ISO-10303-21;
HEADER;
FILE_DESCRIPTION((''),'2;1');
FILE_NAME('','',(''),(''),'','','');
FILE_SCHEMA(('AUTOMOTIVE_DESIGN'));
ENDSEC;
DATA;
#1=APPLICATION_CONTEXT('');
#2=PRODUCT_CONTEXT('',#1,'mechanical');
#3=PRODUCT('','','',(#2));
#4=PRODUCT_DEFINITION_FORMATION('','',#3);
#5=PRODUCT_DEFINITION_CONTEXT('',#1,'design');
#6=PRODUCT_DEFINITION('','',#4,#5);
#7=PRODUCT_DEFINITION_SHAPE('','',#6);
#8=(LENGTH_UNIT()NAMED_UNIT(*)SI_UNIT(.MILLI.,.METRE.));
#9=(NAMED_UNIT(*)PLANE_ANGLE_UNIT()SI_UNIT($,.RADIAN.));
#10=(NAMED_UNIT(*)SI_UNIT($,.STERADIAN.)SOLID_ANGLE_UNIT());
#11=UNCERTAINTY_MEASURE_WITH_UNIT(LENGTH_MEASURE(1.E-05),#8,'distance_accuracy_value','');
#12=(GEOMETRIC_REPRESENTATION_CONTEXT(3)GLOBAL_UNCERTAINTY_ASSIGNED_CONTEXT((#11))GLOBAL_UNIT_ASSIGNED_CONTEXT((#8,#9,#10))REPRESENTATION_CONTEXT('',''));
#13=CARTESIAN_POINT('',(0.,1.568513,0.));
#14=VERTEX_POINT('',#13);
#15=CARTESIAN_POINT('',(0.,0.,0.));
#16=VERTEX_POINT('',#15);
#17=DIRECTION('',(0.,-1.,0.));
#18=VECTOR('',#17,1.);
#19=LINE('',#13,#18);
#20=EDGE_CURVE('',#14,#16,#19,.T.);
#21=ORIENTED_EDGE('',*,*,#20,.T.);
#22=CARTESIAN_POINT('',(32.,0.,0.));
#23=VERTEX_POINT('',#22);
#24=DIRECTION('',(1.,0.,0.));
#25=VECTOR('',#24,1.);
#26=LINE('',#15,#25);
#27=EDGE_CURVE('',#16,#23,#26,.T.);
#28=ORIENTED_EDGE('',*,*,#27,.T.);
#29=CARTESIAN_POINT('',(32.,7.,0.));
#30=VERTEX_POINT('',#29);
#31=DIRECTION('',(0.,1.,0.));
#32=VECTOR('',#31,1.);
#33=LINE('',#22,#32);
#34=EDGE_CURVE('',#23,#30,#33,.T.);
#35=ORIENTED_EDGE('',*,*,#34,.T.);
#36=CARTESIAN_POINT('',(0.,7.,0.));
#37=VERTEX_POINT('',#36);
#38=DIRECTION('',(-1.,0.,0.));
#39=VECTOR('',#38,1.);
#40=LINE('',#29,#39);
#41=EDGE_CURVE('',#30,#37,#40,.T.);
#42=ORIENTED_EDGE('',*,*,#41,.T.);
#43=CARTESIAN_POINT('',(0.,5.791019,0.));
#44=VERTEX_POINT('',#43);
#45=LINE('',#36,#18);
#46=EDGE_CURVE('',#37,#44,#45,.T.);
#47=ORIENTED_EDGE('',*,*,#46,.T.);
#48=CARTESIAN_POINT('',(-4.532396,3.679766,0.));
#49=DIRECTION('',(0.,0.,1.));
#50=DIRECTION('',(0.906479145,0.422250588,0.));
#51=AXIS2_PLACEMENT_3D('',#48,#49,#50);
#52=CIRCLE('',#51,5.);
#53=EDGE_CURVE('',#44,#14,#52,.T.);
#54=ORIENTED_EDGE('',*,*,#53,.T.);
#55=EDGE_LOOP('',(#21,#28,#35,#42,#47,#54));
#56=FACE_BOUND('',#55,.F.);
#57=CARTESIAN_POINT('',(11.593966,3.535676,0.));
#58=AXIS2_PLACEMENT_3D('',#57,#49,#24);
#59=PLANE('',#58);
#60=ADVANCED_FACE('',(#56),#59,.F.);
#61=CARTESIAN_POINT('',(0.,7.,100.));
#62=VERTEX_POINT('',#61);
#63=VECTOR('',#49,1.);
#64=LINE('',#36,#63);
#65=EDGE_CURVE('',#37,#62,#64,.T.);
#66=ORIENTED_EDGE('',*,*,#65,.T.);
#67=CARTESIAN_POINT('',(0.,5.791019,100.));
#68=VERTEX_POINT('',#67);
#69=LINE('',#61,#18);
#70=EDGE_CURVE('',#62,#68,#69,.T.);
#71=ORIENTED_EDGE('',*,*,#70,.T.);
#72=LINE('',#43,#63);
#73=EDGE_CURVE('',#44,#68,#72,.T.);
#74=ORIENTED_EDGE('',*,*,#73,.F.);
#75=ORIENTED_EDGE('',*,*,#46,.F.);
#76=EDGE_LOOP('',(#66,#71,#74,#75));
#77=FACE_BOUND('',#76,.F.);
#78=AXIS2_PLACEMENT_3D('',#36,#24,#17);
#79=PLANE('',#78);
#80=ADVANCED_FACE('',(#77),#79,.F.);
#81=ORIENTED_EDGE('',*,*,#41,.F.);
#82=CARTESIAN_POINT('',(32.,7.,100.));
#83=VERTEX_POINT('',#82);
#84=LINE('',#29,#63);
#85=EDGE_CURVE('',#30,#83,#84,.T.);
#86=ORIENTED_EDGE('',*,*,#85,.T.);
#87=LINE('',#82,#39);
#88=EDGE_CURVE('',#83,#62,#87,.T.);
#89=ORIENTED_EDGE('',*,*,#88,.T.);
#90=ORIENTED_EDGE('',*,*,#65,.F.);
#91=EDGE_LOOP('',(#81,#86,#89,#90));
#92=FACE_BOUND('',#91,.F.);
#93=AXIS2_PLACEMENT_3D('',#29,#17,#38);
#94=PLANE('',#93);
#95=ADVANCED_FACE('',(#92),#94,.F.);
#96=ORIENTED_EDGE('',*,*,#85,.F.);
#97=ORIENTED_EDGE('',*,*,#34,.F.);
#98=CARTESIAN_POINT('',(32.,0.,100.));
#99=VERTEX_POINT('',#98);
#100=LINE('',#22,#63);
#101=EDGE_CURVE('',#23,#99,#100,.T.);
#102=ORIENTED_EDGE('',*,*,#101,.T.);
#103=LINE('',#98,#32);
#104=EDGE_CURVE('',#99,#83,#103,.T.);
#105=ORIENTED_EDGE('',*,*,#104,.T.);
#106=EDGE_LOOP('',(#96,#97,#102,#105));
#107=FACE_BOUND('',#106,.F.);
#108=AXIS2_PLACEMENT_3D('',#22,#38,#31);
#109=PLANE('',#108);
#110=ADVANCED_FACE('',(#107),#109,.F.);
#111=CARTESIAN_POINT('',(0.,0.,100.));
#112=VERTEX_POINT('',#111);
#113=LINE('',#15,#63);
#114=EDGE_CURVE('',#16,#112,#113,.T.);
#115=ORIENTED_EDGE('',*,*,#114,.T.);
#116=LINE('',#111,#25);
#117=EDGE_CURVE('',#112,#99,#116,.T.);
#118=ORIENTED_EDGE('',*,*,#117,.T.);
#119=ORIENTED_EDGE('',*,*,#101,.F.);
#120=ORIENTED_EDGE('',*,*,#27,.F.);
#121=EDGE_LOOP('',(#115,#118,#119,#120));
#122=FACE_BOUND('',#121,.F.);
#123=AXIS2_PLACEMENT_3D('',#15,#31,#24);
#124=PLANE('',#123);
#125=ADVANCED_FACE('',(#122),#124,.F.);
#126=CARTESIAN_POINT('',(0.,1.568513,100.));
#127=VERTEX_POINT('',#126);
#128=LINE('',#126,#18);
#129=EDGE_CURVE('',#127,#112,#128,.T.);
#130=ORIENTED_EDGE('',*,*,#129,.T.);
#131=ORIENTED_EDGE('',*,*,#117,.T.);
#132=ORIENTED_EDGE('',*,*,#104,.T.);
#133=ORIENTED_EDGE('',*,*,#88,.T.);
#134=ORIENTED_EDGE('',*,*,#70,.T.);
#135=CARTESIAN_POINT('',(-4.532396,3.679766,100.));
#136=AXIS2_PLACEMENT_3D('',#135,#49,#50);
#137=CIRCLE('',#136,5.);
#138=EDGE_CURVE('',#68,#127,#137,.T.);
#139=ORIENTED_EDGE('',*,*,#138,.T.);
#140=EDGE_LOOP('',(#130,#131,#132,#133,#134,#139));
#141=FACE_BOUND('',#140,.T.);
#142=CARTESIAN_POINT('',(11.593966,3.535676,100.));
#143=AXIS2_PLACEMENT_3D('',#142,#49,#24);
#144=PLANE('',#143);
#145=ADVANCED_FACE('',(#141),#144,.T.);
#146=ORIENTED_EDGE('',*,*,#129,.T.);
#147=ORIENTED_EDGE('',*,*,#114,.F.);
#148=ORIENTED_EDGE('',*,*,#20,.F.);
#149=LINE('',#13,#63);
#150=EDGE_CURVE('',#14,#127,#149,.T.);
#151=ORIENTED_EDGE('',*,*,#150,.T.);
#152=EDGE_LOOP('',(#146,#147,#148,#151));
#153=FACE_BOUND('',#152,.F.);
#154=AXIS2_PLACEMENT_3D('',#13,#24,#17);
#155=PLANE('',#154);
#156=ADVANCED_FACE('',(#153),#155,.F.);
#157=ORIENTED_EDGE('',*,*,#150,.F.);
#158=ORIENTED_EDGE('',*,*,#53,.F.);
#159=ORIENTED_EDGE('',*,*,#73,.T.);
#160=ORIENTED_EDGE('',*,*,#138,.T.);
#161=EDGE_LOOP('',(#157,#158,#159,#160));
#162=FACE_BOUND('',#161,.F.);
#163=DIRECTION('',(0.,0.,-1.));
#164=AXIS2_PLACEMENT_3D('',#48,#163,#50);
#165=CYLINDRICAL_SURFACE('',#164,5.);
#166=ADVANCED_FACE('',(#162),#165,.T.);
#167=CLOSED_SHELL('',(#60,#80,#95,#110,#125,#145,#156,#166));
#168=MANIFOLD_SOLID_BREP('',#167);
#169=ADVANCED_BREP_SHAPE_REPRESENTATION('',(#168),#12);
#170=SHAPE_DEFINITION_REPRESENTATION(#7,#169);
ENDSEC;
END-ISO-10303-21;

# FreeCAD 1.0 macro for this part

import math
import FreeCAD as App
import Part
import Sketcher

V = App.Vector

doc = App.newDocument("Part")
body = doc.addObject("PartDesign::Body", "Body")

sketch1 = body.newObject("Sketcher::SketchObject", "Sketch")
sketch1.AttachmentSupport = (doc.getObject("XY_Plane"), [""])
sketch1.MapMode = "FlatFace"
sketch1.addGeometry([
    Part.LineSegment(V(0, 1.6, 0), V(0, 0, 0)),
    Part.LineSegment(V(0, 0, 0), V(32, 0, 0)),
    Part.LineSegment(V(32, 0, 0), V(32, 7, 0)),
    Part.LineSegment(V(32, 7, 0), V(0, 7, 0)),
    Part.LineSegment(V(0, 7, 0), V(0, 5.8, 0)),
    Part.ArcOfCircle(Part.Circle(V(-4.5, 3.7, 0), V(0, 0, 1), 5), math.radians(25), math.radians(335)),
], False)
sketch1.addConstraint([
    Sketcher.Constraint("Coincident", 0, 2, 1, 1),
    Sketcher.Constraint("Coincident", 1, 2, 2, 1),
    Sketcher.Constraint("Coincident", 2, 2, 3, 1),
    Sketcher.Constraint("Coincident", 3, 2, 4, 1),
    Sketcher.Constraint("Coincident", 4, 2, 5, 1),
    Sketcher.Constraint("Coincident", 5, 2, 0, 1),
    Sketcher.Constraint("Vertical", 0),
    Sketcher.Constraint("Horizontal", 1),
    Sketcher.Constraint("Vertical", 2),
    Sketcher.Constraint("Horizontal", 3),
    Sketcher.Constraint("Vertical", 4),
    Sketcher.Constraint("Coincident", 0, 2, -1, 1),
    Sketcher.Constraint("PointOnObject", 3, 2, -2),
    Sketcher.Constraint("Radius", 5, 5.0),
    Sketcher.Constraint("DistanceX", 1, 1, 1, 2, 32.0),
    Sketcher.Constraint("DistanceY", 2, 1, 2, 2, 7.0),
    Sketcher.Constraint("DistanceY", 4, 2, 4, 1, 1.208981),
    Sketcher.Constraint("DistanceY", 0, 2, 0, 1, 1.568513),
])
pad1 = body.newObject("PartDesign::Pad", "Pad")
pad1.Profile = sketch1
pad1.Length = 100

doc.recompute()
